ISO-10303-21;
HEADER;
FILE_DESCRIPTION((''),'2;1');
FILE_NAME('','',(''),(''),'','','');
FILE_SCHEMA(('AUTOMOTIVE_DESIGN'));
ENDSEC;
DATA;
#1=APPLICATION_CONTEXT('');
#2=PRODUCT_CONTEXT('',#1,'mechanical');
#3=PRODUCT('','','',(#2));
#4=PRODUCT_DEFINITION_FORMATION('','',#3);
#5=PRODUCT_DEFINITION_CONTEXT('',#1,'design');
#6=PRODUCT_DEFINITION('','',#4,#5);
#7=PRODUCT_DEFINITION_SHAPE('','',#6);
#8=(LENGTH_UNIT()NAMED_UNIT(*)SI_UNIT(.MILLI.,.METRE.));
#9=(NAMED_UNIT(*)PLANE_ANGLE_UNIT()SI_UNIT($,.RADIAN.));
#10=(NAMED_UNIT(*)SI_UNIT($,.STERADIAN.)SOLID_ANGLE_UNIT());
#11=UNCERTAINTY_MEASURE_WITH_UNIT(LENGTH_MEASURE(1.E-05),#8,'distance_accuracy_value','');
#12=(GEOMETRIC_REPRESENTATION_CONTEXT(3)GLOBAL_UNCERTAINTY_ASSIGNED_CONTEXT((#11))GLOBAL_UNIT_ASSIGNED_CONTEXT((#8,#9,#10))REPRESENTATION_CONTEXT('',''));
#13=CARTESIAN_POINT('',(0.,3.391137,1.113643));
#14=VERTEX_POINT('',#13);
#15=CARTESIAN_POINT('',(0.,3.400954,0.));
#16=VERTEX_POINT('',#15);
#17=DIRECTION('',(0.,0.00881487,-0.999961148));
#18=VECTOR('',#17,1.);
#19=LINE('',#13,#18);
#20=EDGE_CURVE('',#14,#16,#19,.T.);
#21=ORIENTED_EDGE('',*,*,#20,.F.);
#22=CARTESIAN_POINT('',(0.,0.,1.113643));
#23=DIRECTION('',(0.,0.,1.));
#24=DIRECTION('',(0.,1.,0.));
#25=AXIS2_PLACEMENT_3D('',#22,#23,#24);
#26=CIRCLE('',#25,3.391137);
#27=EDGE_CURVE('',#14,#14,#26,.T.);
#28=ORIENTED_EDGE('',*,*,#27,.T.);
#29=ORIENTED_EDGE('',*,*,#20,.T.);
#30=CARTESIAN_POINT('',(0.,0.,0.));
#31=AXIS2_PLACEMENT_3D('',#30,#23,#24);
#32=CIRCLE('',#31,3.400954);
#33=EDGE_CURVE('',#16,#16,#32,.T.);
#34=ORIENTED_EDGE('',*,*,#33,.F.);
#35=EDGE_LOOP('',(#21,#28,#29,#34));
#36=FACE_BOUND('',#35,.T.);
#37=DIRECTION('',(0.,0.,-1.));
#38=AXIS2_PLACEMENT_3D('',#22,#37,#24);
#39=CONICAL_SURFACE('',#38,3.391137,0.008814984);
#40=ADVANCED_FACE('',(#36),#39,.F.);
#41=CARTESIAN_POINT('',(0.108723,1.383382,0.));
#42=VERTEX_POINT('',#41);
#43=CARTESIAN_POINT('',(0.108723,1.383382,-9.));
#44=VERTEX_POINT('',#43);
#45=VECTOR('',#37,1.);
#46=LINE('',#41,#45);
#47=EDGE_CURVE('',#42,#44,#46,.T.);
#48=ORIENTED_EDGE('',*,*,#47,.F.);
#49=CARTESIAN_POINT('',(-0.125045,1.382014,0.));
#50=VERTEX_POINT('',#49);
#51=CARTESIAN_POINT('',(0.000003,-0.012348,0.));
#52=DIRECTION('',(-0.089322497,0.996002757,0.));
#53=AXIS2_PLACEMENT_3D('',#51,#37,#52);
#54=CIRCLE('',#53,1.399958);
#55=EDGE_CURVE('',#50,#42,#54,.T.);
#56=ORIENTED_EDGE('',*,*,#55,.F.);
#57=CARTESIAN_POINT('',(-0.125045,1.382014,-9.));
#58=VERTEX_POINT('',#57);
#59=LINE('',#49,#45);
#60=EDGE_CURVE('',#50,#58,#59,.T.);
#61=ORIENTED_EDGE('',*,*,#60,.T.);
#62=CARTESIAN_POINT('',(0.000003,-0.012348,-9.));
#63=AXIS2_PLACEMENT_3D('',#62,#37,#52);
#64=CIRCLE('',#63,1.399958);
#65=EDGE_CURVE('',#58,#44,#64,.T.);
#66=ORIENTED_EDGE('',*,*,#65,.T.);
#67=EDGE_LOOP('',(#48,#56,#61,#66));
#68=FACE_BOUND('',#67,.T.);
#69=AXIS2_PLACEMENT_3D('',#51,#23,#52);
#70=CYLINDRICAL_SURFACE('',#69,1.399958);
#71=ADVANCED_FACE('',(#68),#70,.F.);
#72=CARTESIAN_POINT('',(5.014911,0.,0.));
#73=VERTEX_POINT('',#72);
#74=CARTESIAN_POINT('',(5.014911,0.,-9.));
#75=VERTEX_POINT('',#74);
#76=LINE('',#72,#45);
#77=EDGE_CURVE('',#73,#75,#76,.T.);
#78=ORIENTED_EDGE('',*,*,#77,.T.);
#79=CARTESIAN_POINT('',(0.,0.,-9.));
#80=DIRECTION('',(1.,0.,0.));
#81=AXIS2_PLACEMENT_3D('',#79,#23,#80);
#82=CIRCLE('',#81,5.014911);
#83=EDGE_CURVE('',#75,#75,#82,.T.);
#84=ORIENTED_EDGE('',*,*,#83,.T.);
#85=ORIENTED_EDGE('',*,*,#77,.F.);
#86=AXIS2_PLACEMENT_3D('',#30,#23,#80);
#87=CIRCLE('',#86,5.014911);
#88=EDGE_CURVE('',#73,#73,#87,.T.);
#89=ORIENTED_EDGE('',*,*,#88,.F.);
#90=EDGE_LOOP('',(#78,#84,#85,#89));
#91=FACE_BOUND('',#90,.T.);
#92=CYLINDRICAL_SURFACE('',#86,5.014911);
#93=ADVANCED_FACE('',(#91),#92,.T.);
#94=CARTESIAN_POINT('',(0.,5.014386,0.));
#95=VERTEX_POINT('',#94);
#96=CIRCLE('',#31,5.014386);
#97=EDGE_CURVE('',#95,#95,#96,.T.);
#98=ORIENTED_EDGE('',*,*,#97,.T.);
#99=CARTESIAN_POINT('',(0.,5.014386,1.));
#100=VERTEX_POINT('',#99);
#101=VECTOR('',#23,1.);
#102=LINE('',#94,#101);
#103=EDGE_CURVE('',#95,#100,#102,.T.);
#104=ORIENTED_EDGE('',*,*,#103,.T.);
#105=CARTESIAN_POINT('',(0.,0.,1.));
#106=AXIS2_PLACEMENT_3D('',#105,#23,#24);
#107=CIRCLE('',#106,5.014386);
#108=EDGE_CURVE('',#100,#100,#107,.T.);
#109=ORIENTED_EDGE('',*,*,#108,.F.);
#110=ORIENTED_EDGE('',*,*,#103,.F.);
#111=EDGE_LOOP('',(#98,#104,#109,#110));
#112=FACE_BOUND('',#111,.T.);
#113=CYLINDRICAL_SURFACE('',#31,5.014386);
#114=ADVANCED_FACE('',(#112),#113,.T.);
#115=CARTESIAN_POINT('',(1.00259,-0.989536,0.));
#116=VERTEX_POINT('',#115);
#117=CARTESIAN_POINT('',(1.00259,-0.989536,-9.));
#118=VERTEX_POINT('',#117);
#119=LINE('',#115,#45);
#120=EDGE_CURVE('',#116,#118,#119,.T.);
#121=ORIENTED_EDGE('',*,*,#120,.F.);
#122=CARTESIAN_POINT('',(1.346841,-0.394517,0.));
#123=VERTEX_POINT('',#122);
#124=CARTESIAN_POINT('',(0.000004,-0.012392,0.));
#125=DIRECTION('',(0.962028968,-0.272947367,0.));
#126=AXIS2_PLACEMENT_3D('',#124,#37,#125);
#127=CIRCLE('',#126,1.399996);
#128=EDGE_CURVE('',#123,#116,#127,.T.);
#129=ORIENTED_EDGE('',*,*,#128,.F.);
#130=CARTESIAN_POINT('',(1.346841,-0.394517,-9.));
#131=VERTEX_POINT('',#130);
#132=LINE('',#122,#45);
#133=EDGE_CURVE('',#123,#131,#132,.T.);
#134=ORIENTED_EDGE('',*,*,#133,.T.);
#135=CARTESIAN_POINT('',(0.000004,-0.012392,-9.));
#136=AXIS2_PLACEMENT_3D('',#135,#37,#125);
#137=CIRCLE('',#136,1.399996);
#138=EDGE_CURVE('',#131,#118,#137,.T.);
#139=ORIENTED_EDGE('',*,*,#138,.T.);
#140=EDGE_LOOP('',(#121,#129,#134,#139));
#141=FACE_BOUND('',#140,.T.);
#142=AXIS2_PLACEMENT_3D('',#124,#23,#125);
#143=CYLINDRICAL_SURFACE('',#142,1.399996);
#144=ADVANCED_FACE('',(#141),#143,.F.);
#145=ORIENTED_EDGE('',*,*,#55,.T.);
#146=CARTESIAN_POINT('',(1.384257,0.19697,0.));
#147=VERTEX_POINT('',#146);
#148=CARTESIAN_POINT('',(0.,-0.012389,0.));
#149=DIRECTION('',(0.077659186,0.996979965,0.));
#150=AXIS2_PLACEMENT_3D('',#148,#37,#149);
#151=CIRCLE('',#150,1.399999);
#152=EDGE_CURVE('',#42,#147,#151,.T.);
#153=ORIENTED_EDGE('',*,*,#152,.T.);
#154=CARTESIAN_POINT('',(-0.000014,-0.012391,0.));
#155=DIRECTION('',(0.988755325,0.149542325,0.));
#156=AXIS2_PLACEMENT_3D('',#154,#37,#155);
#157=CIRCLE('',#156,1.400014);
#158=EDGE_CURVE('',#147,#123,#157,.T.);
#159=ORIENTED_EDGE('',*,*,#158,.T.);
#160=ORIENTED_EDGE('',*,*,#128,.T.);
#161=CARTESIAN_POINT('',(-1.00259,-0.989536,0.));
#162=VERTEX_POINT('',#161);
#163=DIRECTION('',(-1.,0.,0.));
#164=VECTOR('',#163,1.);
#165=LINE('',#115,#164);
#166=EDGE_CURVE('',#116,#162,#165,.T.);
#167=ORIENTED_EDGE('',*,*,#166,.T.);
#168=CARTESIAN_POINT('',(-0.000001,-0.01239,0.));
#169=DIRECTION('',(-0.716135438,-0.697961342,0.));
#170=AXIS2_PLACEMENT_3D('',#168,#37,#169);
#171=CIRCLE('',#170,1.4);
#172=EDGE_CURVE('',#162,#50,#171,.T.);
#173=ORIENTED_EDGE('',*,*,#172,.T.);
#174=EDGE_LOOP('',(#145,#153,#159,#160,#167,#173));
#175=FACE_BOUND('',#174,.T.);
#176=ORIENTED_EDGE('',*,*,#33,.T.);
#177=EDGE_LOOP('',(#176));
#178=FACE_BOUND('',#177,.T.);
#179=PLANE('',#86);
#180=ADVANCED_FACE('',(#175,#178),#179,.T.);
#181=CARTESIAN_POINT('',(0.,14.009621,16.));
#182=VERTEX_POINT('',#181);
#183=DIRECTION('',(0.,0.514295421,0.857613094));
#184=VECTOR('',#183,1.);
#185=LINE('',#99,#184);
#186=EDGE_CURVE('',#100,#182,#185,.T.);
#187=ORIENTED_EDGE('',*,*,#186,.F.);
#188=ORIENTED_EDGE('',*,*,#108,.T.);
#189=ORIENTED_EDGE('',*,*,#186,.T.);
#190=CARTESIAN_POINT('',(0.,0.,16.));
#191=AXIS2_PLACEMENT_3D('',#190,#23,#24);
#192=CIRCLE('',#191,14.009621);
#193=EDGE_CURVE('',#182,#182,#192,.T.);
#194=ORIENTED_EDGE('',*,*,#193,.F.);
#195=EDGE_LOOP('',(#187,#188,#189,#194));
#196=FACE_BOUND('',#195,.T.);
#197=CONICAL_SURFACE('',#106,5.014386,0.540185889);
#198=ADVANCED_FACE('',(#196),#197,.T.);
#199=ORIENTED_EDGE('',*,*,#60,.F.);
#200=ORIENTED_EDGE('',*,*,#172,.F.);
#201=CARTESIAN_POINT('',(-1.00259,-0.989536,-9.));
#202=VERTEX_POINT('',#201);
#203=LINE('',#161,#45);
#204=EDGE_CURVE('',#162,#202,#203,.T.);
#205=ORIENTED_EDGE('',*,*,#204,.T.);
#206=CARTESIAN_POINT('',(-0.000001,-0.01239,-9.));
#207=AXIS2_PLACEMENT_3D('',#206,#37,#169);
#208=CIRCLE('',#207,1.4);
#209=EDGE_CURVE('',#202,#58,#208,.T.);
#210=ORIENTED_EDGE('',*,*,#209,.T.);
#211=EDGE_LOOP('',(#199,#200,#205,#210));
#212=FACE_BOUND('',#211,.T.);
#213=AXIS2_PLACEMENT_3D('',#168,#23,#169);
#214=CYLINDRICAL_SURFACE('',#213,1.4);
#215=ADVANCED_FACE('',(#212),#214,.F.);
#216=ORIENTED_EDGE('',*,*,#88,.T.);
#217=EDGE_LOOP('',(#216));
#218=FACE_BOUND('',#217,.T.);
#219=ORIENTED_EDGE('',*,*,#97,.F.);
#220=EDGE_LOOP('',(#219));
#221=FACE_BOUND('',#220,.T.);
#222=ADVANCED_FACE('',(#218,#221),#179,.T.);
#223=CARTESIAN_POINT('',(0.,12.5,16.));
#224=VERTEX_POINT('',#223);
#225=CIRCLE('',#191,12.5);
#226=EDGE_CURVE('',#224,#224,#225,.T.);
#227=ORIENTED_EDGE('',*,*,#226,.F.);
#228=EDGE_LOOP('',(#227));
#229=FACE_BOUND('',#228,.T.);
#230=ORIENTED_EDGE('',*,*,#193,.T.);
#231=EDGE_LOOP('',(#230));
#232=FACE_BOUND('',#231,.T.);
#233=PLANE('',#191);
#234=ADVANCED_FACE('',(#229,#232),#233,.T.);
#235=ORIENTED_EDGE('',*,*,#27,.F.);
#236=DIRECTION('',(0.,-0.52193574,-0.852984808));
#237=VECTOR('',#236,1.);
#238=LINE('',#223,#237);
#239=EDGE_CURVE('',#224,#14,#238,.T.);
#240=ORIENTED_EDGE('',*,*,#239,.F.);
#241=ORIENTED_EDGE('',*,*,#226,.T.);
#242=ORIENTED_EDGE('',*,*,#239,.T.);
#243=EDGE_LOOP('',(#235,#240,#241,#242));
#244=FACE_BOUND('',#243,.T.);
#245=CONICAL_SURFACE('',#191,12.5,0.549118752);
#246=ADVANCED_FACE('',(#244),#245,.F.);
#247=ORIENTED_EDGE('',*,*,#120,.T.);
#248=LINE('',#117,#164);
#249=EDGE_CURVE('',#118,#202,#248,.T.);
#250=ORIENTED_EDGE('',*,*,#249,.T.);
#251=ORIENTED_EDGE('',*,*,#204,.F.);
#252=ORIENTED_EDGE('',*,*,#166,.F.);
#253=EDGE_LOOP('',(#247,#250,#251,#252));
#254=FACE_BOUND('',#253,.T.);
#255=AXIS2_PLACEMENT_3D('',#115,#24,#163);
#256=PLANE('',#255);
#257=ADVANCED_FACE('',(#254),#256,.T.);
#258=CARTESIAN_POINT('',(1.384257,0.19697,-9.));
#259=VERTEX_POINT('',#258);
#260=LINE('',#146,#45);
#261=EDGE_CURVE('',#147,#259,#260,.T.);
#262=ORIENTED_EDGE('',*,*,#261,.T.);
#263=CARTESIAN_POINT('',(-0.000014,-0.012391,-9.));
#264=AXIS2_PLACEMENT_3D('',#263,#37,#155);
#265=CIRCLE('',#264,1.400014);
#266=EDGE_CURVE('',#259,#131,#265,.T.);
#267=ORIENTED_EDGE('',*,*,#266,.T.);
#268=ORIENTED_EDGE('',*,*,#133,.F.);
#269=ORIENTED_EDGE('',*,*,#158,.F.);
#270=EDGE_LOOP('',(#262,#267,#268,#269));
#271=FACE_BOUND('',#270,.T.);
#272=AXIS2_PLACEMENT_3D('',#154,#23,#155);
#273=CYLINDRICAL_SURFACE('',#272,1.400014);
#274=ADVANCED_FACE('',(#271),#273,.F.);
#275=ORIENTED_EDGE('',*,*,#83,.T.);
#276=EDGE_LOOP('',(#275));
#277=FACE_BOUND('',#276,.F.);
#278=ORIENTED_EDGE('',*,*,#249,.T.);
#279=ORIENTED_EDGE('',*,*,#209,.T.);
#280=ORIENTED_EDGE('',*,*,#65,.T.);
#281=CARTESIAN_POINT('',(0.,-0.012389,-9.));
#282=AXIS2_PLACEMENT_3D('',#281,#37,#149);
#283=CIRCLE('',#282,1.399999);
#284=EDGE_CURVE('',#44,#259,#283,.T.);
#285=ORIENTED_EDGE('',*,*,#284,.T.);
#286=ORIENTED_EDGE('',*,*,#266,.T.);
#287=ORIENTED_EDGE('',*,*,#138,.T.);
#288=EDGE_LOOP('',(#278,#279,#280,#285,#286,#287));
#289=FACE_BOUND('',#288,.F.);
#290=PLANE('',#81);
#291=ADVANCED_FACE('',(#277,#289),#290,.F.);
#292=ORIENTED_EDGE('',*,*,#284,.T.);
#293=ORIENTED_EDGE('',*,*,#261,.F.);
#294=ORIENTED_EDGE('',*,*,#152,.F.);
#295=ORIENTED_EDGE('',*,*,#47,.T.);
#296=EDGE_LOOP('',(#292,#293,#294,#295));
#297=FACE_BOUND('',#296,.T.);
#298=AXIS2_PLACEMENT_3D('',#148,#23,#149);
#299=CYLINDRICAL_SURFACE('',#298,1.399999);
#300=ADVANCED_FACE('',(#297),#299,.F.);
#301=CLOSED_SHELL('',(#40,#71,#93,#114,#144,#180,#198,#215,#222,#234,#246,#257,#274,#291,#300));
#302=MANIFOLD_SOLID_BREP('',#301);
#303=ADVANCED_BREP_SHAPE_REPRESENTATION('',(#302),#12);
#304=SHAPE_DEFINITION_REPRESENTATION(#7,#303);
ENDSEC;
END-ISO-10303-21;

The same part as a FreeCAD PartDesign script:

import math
import FreeCAD as App
import Part
import Sketcher
Q = App.Units.Quantity


def add_polygon(sketch, points):
    """Adds a closed chain of lines whose ends are joined by coincident constraints."""
    first, n = sketch.GeometryCount, len(points)
    for a, b in zip(points, points[1:] + points[:1]):
        sketch.addGeometry(Part.LineSegment(App.Vector(*a, 0), App.Vector(*b, 0)), False)
    for i in range(n):
        sketch.addConstraint(Sketcher.Constraint("Coincident", first + i, 2, first + (i + 1) % n, 1))

doc = App.newDocument("Part")
body = doc.addObject("PartDesign::Body", "Body")

# Sketch on XY plane
sketch1 = doc.addObject("Sketcher::SketchObject", "Sketch")
body.addObject(sketch1)
sketch1.AttachmentSupport = (doc.XY_Plane, [""])
sketch1.MapMode = "FlatFace"
sketch1.addGeometry([
    Part.Circle(App.Vector(0, 0, 0), App.Vector(0, 0, 1), 5.014911),  # 0
    Part.ArcOfCircle(Part.Circle(App.Vector(-0.000014, -0.012391, 0), App.Vector(0, 0, 1), 1.400014), math.radians(-15.839537), math.radians(8.600405)),  # 1
    Part.ArcOfCircle(Part.Circle(App.Vector(0.000004, -0.012392, 0), App.Vector(0, 0, 1), 1.399996), math.radians(-44.263726), math.radians(-15.839728)),  # 2
    Part.LineSegment(App.Vector(1.00259, -0.989536, 0), App.Vector(-1.00259, -0.989536, 0)),  # 3
    Part.ArcOfCircle(Part.Circle(App.Vector(-0.000001, -0.01239, 0), App.Vector(0, 0, 1), 1.4), math.radians(95.124344), math.radians(224.26367)),  # 4
    Part.ArcOfCircle(Part.Circle(App.Vector(0.000003, -0.012348, 0), App.Vector(0, 0, 1), 1.399958), math.radians(85.545945), math.radians(95.124632)),  # 5
    Part.ArcOfCircle(Part.Circle(App.Vector(0, -0.012389, 0), App.Vector(0, 0, 1), 1.399999), math.radians(8.600411), math.radians(85.545972)),  # 6
], False)
sketch1.addConstraint([
    Sketcher.Constraint("Coincident", 1, 1, 2, 2),
    Sketcher.Constraint("Coincident", 2, 1, 3, 1),
    Sketcher.Constraint("Coincident", 3, 2, 4, 2),
    Sketcher.Constraint("Coincident", 4, 1, 5, 2),
    Sketcher.Constraint("Coincident", 5, 1, 6, 2),
    Sketcher.Constraint("Coincident", 6, 1, 1, 2),
    Sketcher.Constraint("Horizontal", 3),
    Sketcher.Constraint("Coincident", 0, 3, -1, 1),
    Sketcher.Constraint("Coincident", 4, 3, 2, 3),
    Sketcher.Constraint("Coincident", 6, 3, 2, 3),
    Sketcher.Constraint("PointOnObject", 4, 3, -2),
    Sketcher.Constraint("Radius", 4, Q("1.4 mm")),
    Sketcher.Constraint("Radius", 6, Q("1.399999 mm")),
    Sketcher.Constraint("Diameter", 0, Q("10.029822 mm")),
    Sketcher.Constraint("Radius", 5, Q("1.399958 mm")),
    Sketcher.Constraint("Radius", 1, Q("1.400014 mm")),
    Sketcher.Constraint("Radius", 2, Q("1.399996 mm")),
    Sketcher.Constraint("DistanceX", 3, 2, 3, 1, Q("2.00518 mm")),
    Sketcher.Constraint("DistanceY", 1, 3, -1, 1, Q("0.012391 mm")),
    Sketcher.Constraint("DistanceX", -1, 1, 1, 1, Q("1.346841 mm")),
    Sketcher.Constraint("DistanceY", -1, 1, 6, 1, Q("0.19697 mm")),
    Sketcher.Constraint("DistanceX", 4, 1, 1, 3, Q("0.125031 mm")),
    Sketcher.Constraint("DistanceY", 4, 1, 5, 1, Q("0.001368 mm")),
])
pad1 = doc.addObject("PartDesign::Pad", "Pad")
body.addObject(pad1)
pad1.Profile = sketch1
pad1.Length = 9
pad1.Reversed = True

# Sketch on YZ plane
sketch2 = doc.addObject("Sketcher::SketchObject", "Sketch001")
body.addObject(sketch2)
sketch2.AttachmentSupport = (doc.YZ_Plane, [""])
sketch2.MapMode = "FlatFace"
add_polygon(sketch2, [(5, 0), (5, 1), (14, 16), (12.5, 16), (3.4, 1.1), (3.4, 0)])  # lines 0-5
sketch2.addConstraint([
    Sketcher.Constraint("Vertical", 0),
    Sketcher.Constraint("Horizontal", 2),
    Sketcher.Constraint("Horizontal", 5),
    Sketcher.Constraint("PointOnObject", 4, 2, -1),
    Sketcher.Constraint("DistanceY", 0, 1, 0, 2, Q("1 mm")),
    Sketcher.Constraint("DistanceY", -1, 1, 1, 2, Q("16 mm")),
    Sketcher.Constraint("DistanceX", -1, 1, 2, 2, Q("12.5 mm")),
    Sketcher.Constraint("DistanceX", 2, 2, 2, 1, Q("1.509621 mm")),
    Sketcher.Constraint("DistanceX", 5, 1, 5, 2, Q("1.613432 mm")),
    Sketcher.Constraint("DistanceX", 3, 2, 0, 2, Q("1.623249 mm")),
    Sketcher.Constraint("Distance", 1, Q("17.490405 mm")),
    Sketcher.Constraint("Distance", 3, Q("17.452078 mm")),
])
revolution = doc.addObject("PartDesign::Revolution", "Revolution")
body.addObject(revolution)
revolution.Profile = sketch2
revolution.ReferenceAxis = (sketch2, ["V_Axis"])
revolution.Angle = 360

doc.recompute()
